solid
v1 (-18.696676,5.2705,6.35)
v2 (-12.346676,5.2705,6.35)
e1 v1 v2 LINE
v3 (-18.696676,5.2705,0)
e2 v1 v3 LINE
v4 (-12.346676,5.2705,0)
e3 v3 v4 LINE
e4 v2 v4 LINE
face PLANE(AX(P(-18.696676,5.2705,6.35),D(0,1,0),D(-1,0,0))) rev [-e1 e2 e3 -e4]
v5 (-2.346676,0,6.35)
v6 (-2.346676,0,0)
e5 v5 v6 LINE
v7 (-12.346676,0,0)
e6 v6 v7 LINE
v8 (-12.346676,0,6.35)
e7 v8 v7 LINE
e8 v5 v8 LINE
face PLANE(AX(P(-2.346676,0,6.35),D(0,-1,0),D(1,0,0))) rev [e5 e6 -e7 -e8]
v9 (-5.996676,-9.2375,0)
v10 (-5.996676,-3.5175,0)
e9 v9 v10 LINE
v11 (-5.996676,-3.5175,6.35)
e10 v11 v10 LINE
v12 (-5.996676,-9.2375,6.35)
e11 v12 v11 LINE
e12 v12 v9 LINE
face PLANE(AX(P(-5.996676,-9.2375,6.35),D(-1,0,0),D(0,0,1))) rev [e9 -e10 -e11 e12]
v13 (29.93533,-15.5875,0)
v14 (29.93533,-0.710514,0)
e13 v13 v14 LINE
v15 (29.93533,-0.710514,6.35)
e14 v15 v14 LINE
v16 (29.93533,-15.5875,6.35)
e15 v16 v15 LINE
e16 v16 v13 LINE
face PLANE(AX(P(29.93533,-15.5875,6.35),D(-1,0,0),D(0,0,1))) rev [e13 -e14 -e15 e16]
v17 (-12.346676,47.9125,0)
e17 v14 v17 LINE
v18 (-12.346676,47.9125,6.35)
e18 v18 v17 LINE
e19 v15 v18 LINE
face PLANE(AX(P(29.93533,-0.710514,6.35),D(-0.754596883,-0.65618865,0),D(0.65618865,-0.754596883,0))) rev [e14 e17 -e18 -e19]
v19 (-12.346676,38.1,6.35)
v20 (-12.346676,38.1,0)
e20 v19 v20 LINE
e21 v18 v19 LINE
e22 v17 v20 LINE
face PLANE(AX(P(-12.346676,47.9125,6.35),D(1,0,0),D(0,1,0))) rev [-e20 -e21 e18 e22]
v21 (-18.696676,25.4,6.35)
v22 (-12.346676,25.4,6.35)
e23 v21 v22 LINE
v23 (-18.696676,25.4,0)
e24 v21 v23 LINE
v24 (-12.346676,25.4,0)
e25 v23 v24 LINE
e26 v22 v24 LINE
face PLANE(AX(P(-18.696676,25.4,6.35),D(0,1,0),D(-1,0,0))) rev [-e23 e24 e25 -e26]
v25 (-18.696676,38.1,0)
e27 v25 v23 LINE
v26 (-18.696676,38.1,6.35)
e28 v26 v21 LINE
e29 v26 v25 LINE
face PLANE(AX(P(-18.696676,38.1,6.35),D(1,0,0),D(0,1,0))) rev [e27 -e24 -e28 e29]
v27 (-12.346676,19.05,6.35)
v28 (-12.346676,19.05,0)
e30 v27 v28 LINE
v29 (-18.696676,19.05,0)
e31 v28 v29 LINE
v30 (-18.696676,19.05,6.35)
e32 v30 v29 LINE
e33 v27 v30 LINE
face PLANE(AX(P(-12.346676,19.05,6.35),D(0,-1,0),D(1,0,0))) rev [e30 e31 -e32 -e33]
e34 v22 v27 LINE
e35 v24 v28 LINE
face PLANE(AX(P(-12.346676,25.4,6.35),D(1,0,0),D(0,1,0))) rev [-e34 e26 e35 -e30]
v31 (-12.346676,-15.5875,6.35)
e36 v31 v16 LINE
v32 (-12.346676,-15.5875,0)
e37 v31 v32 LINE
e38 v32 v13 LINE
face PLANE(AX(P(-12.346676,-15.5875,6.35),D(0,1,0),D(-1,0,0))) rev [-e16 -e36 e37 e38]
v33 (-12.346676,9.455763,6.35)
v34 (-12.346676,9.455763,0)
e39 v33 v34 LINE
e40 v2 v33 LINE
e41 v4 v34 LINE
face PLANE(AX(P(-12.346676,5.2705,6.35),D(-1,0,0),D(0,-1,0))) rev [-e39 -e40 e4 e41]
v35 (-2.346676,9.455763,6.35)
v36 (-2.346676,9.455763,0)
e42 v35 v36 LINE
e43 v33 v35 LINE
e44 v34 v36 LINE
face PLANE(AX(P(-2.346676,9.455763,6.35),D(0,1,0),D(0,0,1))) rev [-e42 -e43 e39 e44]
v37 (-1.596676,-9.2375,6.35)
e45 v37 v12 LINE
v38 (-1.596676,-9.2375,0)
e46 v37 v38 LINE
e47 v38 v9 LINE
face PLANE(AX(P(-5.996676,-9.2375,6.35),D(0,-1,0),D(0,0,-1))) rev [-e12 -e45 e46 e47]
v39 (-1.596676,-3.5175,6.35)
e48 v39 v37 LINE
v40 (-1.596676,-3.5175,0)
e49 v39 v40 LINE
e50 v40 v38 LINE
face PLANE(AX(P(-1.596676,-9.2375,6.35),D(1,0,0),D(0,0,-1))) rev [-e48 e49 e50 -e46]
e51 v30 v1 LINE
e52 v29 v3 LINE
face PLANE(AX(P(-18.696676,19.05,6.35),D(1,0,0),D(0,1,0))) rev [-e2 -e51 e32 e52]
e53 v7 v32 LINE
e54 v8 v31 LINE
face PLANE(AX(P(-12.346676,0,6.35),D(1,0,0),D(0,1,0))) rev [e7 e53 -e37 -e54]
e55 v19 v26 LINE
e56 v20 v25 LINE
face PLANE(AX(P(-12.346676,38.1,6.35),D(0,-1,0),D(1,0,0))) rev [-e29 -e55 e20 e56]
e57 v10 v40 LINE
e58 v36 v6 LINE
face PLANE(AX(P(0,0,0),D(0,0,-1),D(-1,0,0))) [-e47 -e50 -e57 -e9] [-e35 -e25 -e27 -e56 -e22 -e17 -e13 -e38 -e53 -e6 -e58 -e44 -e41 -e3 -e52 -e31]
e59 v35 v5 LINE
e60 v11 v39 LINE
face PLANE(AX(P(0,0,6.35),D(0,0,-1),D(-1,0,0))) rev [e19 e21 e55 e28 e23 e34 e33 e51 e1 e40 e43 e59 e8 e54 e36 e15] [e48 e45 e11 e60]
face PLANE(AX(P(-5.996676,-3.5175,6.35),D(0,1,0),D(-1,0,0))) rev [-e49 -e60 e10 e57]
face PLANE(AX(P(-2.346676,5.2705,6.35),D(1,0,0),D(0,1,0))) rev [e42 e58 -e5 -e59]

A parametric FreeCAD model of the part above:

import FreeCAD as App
import Part
import Sketcher
from FreeCAD import Vector

doc = App.newDocument("Part")
body = doc.addObject("PartDesign::Body", "Body")

# Sketch on XY plane
sketch1 = doc.addObject("Sketcher::SketchObject", "Sketch")
body.addObject(sketch1)
sketch1.AttachmentSupport = (doc.XY_Plane, [""])
sketch1.MapMode = "FlatFace"
sketch1.addGeometry([
    Part.LineSegment(Vector(-12.346676, 38.1, 0), Vector(-18.696676, 38.1, 0)),  # 0
    Part.LineSegment(Vector(-18.696676, 38.1, 0), Vector(-18.696676, 25.4, 0)),  # 1
    Part.LineSegment(Vector(-18.696676, 25.4, 0), Vector(-12.346676, 25.4, 0)),  # 2
    Part.LineSegment(Vector(-12.346676, 25.4, 0), Vector(-12.346676, 19.05, 0)),  # 3
    Part.LineSegment(Vector(-12.346676, 19.05, 0), Vector(-18.696676, 19.05, 0)),  # 4
    Part.LineSegment(Vector(-18.696676, 19.05, 0), Vector(-18.696676, 5.2705, 0)),  # 5
    Part.LineSegment(Vector(-18.696676, 5.2705, 0), Vector(-12.346676, 5.2705, 0)),  # 6
    Part.LineSegment(Vector(-12.346676, 5.2705, 0), Vector(-12.346676, 9.455763, 0)),  # 7
    Part.LineSegment(Vector(-12.346676, 9.455763, 0), Vector(-2.346676, 9.455763, 0)),  # 8
    Part.LineSegment(Vector(-2.346676, 9.455763, 0), Vector(-2.346676, 0, 0)),  # 9
    Part.LineSegment(Vector(-2.346676, 0, 0), Vector(-12.346676, 0, 0)),  # 10
    Part.LineSegment(Vector(-12.346676, 0, 0), Vector(-12.346676, -15.5875, 0)),  # 11
    Part.LineSegment(Vector(-12.346676, -15.5875, 0), Vector(29.93533, -15.5875, 0)),  # 12
    Part.LineSegment(Vector(29.93533, -15.5875, 0), Vector(29.93533, -0.710514, 0)),  # 13
    Part.LineSegment(Vector(29.93533, -0.710514, 0), Vector(-12.346676, 47.9125, 0)),  # 14
    Part.LineSegment(Vector(-12.346676, 47.9125, 0), Vector(-12.346676, 38.1, 0)),  # 15
], False)
sketch1.addConstraint([
    Sketcher.Constraint("Coincident", 0, 2, 1, 1),
    Sketcher.Constraint("Coincident", 1, 2, 2, 1),
    Sketcher.Constraint("Coincident", 2, 2, 3, 1),
    Sketcher.Constraint("Coincident", 3, 2, 4, 1),
    Sketcher.Constraint("Coincident", 4, 2, 5, 1),
    Sketcher.Constraint("Coincident", 5, 2, 6, 1),
    Sketcher.Constraint("Coincident", 6, 2, 7, 1),
    Sketcher.Constraint("Coincident", 7, 2, 8, 1),
    Sketcher.Constraint("Coincident", 8, 2, 9, 1),
    Sketcher.Constraint("Coincident", 9, 2, 10, 1),
    Sketcher.Constraint("Coincident", 10, 2, 11, 1),
    Sketcher.Constraint("Coincident", 11, 2, 12, 1),
    Sketcher.Constraint("Coincident", 12, 2, 13, 1),
    Sketcher.Constraint("Coincident", 13, 2, 14, 1),
    Sketcher.Constraint("Coincident", 14, 2, 15, 1),
    Sketcher.Constraint("Coincident", 15, 2, 0, 1),
    Sketcher.Constraint("Horizontal", 0),
    Sketcher.Constraint("Vertical", 1),
    Sketcher.Constraint("Horizontal", 2),
    Sketcher.Constraint("Vertical", 3),
    Sketcher.Constraint("Horizontal", 4),
    Sketcher.Constraint("Vertical", 5),
    Sketcher.Constraint("Horizontal", 6),
    Sketcher.Constraint("Vertical", 7),
    Sketcher.Constraint("Horizontal", 8),
    Sketcher.Constraint("Vertical", 9),
    Sketcher.Constraint("Horizontal", 10),
    Sketcher.Constraint("Vertical", 11),
    Sketcher.Constraint("Horizontal", 12),
    Sketcher.Constraint("Vertical", 13),
    Sketcher.Constraint("Vertical", 15),
    Sketcher.Constraint("PointOnObject", 9, 2, -1),
    Sketcher.Constraint("Vertical", 1, 2, 4, 2),
    Sketcher.Constraint("Vertical", 3, 2, 6, 2),
    Sketcher.Constraint("Vertical", 7, 2, 10, 2),
    Sketcher.Constraint("Vertical", 11, 2, 14, 2),
    Sketcher.Constraint("Equal", 6, 3),
    Sketcher.Constraint("DistanceX", 8, 1, 8, 2, 10.0),
    Sketcher.Constraint("DistanceY", 1, 2, 1, 1, 12.7),
    Sketcher.Constraint("DistanceX", 0, 2, 0, 1, 6.35),
    Sketcher.Constraint("DistanceY", -1, 1, 0, 2, 38.1),
    Sketcher.Constraint("DistanceY", 5, 2, 5, 1, 13.7795),
    Sketcher.Constraint("DistanceY", 11, 2, 11, 1, 15.5875),
    Sketcher.Constraint("DistanceY", 15, 2, 15, 1, 9.8125),
    Sketcher.Constraint("DistanceX", 12, 1, 12, 2, 42.282006),
    Sketcher.Constraint("DistanceY", 7, 1, 7, 2, 4.185263),
    Sketcher.Constraint("DistanceY", 13, 1, 13, 2, 14.876986),
    Sketcher.Constraint("DistanceX", -1, 1, 12, 2, 29.93533),
])
pad1 = doc.addObject("PartDesign::Pad", "Pad")
body.addObject(pad1)
pad1.Profile = sketch1
pad1.Length = 6.35

# Sketch on XY plane
sketch2 = doc.addObject("Sketcher::SketchObject", "Sketch001")
body.addObject(sketch2)
sketch2.AttachmentSupport = (doc.XY_Plane, [""])
sketch2.MapMode = "FlatFace"
sketch2.addGeometry([
    Part.LineSegment(Vector(-1.596676, -3.5175, 0), Vector(-1.596676, -9.2375, 0)),
    Part.LineSegment(Vector(-1.596676, -9.2375, 0), Vector(-5.996676, -9.2375, 0)),
    Part.LineSegment(Vector(-5.996676, -9.2375, 0), Vector(-5.996676, -3.5175, 0)),
    Part.LineSegment(Vector(-5.996676, -3.5175, 0), Vector(-1.596676, -3.5175, 0)),
], False)
sketch2.addConstraint([
    Sketcher.Constraint("Coincident", 0, 2, 1, 1),
    Sketcher.Constraint("Coincident", 1, 2, 2, 1),
    Sketcher.Constraint("Coincident", 2, 2, 3, 1),
    Sketcher.Constraint("Coincident", 3, 2, 0, 1),
    Sketcher.Constraint("Vertical", 0),
    Sketcher.Constraint("Horizontal", 1),
    Sketcher.Constraint("Vertical", 2),
    Sketcher.Constraint("Horizontal", 3),
    Sketcher.Constraint("DistanceX", 1, 2, 1, 1, 4.4),
    Sketcher.Constraint("DistanceY", 0, 2, 0, 1, 5.72),
    Sketcher.Constraint("DistanceY", 0, 2, -1, 1, 9.2375),
    Sketcher.Constraint("DistanceX", 0, 2, -1, 1, 1.596676),
])
pocket1 = doc.addObject("PartDesign::Pocket", "Pocket")
body.addObject(pocket1)
pocket1.Profile = sketch2
pocket1.Type = "ThroughAll"
pocket1.Reversed = True

doc.recompute()
